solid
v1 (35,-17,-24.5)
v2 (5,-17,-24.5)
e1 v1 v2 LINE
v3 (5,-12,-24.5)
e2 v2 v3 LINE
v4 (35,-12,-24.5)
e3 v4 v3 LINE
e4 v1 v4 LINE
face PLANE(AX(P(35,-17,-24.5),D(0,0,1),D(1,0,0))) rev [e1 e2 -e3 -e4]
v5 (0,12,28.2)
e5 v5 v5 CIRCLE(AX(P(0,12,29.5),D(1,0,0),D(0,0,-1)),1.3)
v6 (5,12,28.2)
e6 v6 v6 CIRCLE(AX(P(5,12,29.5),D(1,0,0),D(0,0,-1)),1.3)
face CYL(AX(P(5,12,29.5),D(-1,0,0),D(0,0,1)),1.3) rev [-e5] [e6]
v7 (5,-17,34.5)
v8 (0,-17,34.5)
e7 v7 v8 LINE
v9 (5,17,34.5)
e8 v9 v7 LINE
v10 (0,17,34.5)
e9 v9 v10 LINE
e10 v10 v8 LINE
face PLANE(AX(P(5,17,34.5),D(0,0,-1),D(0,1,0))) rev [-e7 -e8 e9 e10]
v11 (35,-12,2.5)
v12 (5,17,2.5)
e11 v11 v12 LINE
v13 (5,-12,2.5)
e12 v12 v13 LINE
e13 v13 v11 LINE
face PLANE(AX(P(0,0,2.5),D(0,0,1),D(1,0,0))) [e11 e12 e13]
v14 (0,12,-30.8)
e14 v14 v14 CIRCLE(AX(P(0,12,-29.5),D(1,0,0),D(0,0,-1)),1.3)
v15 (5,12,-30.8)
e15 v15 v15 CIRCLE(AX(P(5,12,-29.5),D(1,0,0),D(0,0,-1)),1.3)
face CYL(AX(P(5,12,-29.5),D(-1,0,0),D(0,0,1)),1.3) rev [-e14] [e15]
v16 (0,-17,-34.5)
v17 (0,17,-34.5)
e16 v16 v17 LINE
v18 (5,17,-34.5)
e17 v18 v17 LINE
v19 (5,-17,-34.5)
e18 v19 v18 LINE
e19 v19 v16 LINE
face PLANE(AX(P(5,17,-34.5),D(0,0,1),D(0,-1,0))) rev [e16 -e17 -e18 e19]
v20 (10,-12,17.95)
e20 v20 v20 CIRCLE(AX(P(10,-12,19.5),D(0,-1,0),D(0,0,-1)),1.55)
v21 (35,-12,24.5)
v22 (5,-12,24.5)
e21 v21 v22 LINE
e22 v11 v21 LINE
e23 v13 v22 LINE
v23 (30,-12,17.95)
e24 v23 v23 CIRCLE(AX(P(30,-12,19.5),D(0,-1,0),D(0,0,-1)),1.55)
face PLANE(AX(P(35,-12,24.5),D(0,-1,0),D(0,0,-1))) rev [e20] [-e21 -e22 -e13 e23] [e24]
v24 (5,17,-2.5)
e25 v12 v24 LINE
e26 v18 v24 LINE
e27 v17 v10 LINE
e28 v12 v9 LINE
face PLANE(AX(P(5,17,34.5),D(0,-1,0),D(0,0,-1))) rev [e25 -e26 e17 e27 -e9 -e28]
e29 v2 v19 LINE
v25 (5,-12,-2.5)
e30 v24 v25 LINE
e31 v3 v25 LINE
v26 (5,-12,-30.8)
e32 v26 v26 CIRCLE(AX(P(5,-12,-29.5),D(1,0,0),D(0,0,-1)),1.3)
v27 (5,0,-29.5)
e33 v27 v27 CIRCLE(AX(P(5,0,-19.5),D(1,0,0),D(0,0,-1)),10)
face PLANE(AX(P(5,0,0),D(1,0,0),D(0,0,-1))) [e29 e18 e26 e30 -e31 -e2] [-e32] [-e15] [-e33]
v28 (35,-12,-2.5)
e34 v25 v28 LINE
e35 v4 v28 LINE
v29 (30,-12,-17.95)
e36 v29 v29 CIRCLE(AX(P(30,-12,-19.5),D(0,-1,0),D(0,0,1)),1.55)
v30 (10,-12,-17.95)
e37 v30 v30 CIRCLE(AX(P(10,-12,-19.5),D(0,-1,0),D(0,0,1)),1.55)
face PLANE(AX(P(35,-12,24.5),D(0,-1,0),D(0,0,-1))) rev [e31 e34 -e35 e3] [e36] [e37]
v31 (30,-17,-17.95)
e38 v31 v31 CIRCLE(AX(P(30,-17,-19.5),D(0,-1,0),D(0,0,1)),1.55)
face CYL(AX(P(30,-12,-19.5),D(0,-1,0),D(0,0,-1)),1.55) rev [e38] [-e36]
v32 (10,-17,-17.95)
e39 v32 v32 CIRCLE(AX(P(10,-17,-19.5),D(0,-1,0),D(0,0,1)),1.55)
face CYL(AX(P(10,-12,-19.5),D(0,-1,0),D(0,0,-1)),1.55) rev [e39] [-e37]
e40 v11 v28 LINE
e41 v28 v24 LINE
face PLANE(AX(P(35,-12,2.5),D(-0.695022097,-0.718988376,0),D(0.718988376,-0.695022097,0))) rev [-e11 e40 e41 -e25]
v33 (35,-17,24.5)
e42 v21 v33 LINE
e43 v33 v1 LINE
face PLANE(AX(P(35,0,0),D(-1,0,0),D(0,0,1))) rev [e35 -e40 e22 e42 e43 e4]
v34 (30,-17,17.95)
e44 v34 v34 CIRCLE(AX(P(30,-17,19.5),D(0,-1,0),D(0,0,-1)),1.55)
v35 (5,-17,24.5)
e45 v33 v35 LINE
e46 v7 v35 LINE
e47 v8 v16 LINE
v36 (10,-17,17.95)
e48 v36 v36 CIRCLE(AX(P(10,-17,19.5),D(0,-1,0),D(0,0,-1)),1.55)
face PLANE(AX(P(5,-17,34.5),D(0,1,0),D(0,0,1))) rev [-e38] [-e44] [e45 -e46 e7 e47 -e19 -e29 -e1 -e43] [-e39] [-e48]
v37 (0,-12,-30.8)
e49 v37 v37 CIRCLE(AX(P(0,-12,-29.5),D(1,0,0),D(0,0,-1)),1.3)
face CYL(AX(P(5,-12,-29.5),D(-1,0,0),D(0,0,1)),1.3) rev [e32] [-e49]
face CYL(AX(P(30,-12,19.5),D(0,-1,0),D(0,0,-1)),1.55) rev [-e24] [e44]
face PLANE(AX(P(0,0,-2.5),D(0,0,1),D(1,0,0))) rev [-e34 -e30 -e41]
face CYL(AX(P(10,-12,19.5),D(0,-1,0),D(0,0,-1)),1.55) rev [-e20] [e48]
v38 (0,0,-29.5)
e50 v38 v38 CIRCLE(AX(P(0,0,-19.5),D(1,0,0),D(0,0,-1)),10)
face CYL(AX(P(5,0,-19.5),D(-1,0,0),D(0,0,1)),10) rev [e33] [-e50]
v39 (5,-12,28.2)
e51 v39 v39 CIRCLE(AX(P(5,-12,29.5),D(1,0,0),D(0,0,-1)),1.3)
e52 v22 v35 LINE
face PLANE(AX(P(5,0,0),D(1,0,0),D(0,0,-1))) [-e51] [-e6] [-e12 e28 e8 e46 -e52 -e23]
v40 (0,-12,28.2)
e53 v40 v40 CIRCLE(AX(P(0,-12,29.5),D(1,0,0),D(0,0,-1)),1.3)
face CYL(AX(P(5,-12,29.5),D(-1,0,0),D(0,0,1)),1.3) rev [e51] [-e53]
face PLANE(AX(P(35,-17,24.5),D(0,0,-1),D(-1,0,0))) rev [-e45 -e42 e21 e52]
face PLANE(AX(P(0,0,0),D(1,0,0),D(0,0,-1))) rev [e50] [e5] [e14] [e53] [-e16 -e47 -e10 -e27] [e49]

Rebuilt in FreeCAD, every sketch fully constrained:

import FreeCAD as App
import Part
import Sketcher


def add_polygon(sketch, points):
    """Adds a closed chain of lines whose ends are joined by coincident constraints."""
    first, n = sketch.GeometryCount, len(points)
    for a, b in zip(points, points[1:] + points[:1]):
        sketch.addGeometry(Part.LineSegment(App.Vector(*a, 0), App.Vector(*b, 0)), False)
    for i in range(n):
        sketch.addConstraint(Sketcher.Constraint("Coincident", first + i, 2, first + (i + 1) % n, 1))

doc = App.newDocument("Part")
body = doc.addObject("PartDesign::Body", "Body")

# Sketch on YZ plane
sketch1 = body.newObject("Sketcher::SketchObject", "Sketch")
sketch1.AttachmentSupport = (doc.getObject("YZ_Plane"), [""])
sketch1.MapMode = "FlatFace"
add_polygon(sketch1, [(17, 34.5), (-17, 34.5), (-17, -34.5), (17, -34.5)])  # lines 0-3
sketch1.addGeometry(Part.Circle(App.Vector(-12, 29.5, 0), App.Vector(0, 0, 1), 1.3), False)  # 4
sketch1.addGeometry(Part.Circle(App.Vector(-12, -29.5, 0), App.Vector(0, 0, 1), 1.3), False)  # 5
sketch1.addGeometry(Part.Circle(App.Vector(12, 29.5, 0), App.Vector(0, 0, 1), 1.3), False)  # 6
sketch1.addGeometry(Part.Circle(App.Vector(0, -19.5, 0), App.Vector(0, 0, 1), 10), False)  # 7
sketch1.addGeometry(Part.Circle(App.Vector(12, -29.5, 0), App.Vector(0, 0, 1), 1.3), False)  # 8
sketch1.addConstraint(Sketcher.Constraint("Horizontal", 0))
sketch1.addConstraint(Sketcher.Constraint("Vertical", 1))
sketch1.addConstraint(Sketcher.Constraint("Horizontal", 2))
sketch1.addConstraint(Sketcher.Constraint("Vertical", 3))
sketch1.addConstraint(Sketcher.Constraint("Equal", 4, 5))
sketch1.addConstraint(Sketcher.Constraint("Equal", 5, 6))
sketch1.addConstraint(Sketcher.Constraint("Equal", 6, 8))
sketch1.addConstraint(Sketcher.Constraint("Symmetric", 5, 3, 6, 3, -1, 1))
sketch1.addConstraint(Sketcher.Constraint("Symmetric", 4, 3, 8, 3, -1, 1))
sketch1.addConstraint(Sketcher.Constraint("Symmetric", 0, 2, 2, 2, -1, 1))
sketch1.addConstraint(Sketcher.Constraint("Symmetric", 4, 3, 6, 3, -2))
sketch1.addConstraint(Sketcher.Constraint("PointOnObject", 7, 3, -2))
sketch1.addConstraint(Sketcher.Constraint("Diameter", 7, 20.0))
sketch1.addConstraint(Sketcher.Constraint("Diameter", 4, 2.6))
sketch1.addConstraint(Sketcher.Constraint("DistanceX", 0, 2, 0, 1, 34.0))
sketch1.addConstraint(Sketcher.Constraint("DistanceY", 1, 2, 1, 1, 69.0))
sketch1.addConstraint(Sketcher.Constraint("DistanceX", 4, 3, -1, 1, 12.0))
sketch1.addConstraint(Sketcher.Constraint("DistanceY", 5, 3, 4, 3, 59.0))
sketch1.addConstraint(Sketcher.Constraint("DistanceY", 5, 3, 7, 3, 10.0))
pad1 = body.newObject("PartDesign::Pad", "Pad")
pad1.Profile = sketch1
pad1.Length = 5

# Sketch on YZ plane
sketch2 = body.newObject("Sketcher::SketchObject", "Sketch001")
sketch2.AttachmentSupport = (doc.getObject("YZ_Plane"), [""])
sketch2.MapMode = "FlatFace"
sketch2.AttachmentOffset = App.Placement(App.Vector(0, 0, 5), App.Rotation())
add_polygon(sketch2, [(-12, 24.5), (-17, 24.5), (-17, -24.5), (-12, -24.5)])  # lines 0-3
sketch2.addConstraint(Sketcher.Constraint("Horizontal", 0))
sketch2.addConstraint(Sketcher.Constraint("Vertical", 1))
sketch2.addConstraint(Sketcher.Constraint("Horizontal", 2))
sketch2.addConstraint(Sketcher.Constraint("Vertical", 3))
sketch2.addConstraint(Sketcher.Constraint("DistanceX", 0, 2, 0, 1, 5.0))
sketch2.addConstraint(Sketcher.Constraint("DistanceY", 1, 2, 1, 1, 49.0))
sketch2.addConstraint(Sketcher.Constraint("DistanceX", 0, 2, -1, 1, 17.0))
sketch2.addConstraint(Sketcher.Constraint("DistanceY", -1, 1, 0, 2, 24.5))
pad2 = body.newObject("PartDesign::Pad", "Pad001")
pad2.Profile = sketch2
pad2.Length = 30

# Sketch on XY plane
sketch3 = body.newObject("Sketcher::SketchObject", "Sketch002")
sketch3.AttachmentSupport = (doc.getObject("XY_Plane"), [""])
sketch3.MapMode = "FlatFace"
add_polygon(sketch3, [(5, -12), (35, -12), (5, 17)])  # lines 0-2
sketch3.addConstraint(Sketcher.Constraint("Horizontal", 0))
sketch3.addConstraint(Sketcher.Constraint("Vertical", 2))
sketch3.addConstraint(Sketcher.Constraint("DistanceX", 0, 1, 0, 2, 30.0))
sketch3.addConstraint(Sketcher.Constraint("DistanceY", 2, 2, 2, 1, 29.0))
sketch3.addConstraint(Sketcher.Constraint("DistanceX", -1, 1, 0, 2, 35.0))
sketch3.addConstraint(Sketcher.Constraint("DistanceY", 0, 2, -1, 1, 12.0))
pad3 = body.newObject("PartDesign::Pad", "Pad002")
pad3.Profile = sketch3
pad3.Length = 5
pad3.Midplane = True

# Sketch on XZ plane
sketch4 = body.newObject("Sketcher::SketchObject", "Sketch003")
sketch4.AttachmentSupport = (doc.getObject("XZ_Plane"), [""])
sketch4.MapMode = "FlatFace"
sketch4.AttachmentOffset = App.Placement(App.Vector(0, 0, 17), App.Rotation())
sketch4.addGeometry(Part.Circle(App.Vector(30, 19.5, 0), App.Vector(0, 0, 1), 1.55), False)
sketch4.addGeometry(Part.Circle(App.Vector(10, 19.5, 0), App.Vector(0, 0, 1), 1.55), False)
sketch4.addGeometry(Part.Circle(App.Vector(10, -19.5, 0), App.Vector(0, 0, 1), 1.55), False)
sketch4.addGeometry(Part.Circle(App.Vector(30, -19.5, 0), App.Vector(0, 0, 1), 1.55), False)
sketch4.addConstraint(Sketcher.Constraint("Equal", 0, 1))
sketch4.addConstraint(Sketcher.Constraint("Equal", 1, 2))
sketch4.addConstraint(Sketcher.Constraint("Equal", 2, 3))
sketch4.addConstraint(Sketcher.Constraint("Symmetric", 1, 3, 2, 3, -1))
sketch4.addConstraint(Sketcher.Constraint("Symmetric", 0, 3, 3, 3, -1))
sketch4.addConstraint(Sketcher.Constraint("Horizontal", 0, 3, 1, 3))
sketch4.addConstraint(Sketcher.Constraint("Diameter", 0, 3.1))
sketch4.addConstraint(Sketcher.Constraint("DistanceX", -1, 1, 0, 3, 30.0))
sketch4.addConstraint(Sketcher.Constraint("DistanceX", -1, 1, 1, 3, 10.0))
sketch4.addConstraint(Sketcher.Constraint("DistanceY", 2, 3, 1, 3, 39.0))
pocket1 = body.newObject("PartDesign::Pocket", "Pocket")
pocket1.Profile = sketch4
pocket1.Length = 5

doc.recompute()
